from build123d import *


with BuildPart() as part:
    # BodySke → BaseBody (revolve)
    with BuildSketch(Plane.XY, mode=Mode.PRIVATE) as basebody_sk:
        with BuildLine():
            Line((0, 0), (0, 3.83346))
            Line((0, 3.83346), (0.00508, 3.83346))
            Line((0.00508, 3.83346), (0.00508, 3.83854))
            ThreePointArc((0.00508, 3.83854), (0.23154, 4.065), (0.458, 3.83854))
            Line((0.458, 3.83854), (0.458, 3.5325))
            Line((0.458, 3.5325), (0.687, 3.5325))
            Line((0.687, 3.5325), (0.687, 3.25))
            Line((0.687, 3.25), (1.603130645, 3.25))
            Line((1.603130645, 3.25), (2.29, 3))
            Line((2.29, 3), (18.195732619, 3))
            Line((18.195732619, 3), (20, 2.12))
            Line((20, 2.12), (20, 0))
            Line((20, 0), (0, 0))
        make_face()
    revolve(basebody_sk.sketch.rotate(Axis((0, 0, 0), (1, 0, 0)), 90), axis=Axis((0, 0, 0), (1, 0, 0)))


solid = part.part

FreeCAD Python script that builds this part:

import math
import FreeCAD as App
import Part
import Sketcher
Q = App.Units.Quantity

doc = App.newDocument("Part")
body = doc.addObject("PartDesign::Body", "Body")

# Sketch on XY plane
sketch1 = body.newObject("Sketcher::SketchObject", "Sketch")
sketch1.AttachmentSupport = (doc.getObject("XY_Plane"), [""])
sketch1.MapMode = "FlatFace"
sketch1.addGeometry([
    Part.LineSegment(App.Vector(0, 3.833, 0), App.Vector(0, 0, 0)),  # 0
    Part.LineSegment(App.Vector(0, 0, 0), App.Vector(20, 0, 0)),  # 1
    Part.LineSegment(App.Vector(20, 0, 0), App.Vector(20, 2.12, 0)),  # 2
    Part.LineSegment(App.Vector(20, 2.12, 0), App.Vector(18.196, 3, 0)),  # 3
    Part.LineSegment(App.Vector(18.196, 3, 0), App.Vector(2.29, 3, 0)),  # 4
    Part.LineSegment(App.Vector(2.29, 3, 0), App.Vector(1.603, 3.25, 0)),  # 5
    Part.LineSegment(App.Vector(1.603, 3.25, 0), App.Vector(0.687, 3.25, 0)),  # 6
    Part.LineSegment(App.Vector(0.687, 3.25, 0), App.Vector(0.687, 3.533, 0)),  # 7
    Part.LineSegment(App.Vector(0.687, 3.533, 0), App.Vector(0.458, 3.533, 0)),  # 8
    Part.LineSegment(App.Vector(0.458, 3.533, 0), App.Vector(0.458, 3.839, 0)),  # 9
    Part.ArcOfCircle(Part.Circle(App.Vector(0.232, 3.839, 0), App.Vector(0, 0, 1), 0.226), math.radians(0), math.radians(180)),  # 10
    Part.LineSegment(App.Vector(0.005, 3.839, 0), App.Vector(0.005, 3.833, 0)),  # 11
    Part.LineSegment(App.Vector(0.005, 3.833, 0), App.Vector(0, 3.833, 0)),  # 12
], False)
sketch1.addConstraint([
    Sketcher.Constraint("Coincident", 0, 2, 1, 1),
    Sketcher.Constraint("Coincident", 1, 2, 2, 1),
    Sketcher.Constraint("Coincident", 2, 2, 3, 1),
    Sketcher.Constraint("Coincident", 3, 2, 4, 1),
    Sketcher.Constraint("Coincident", 4, 2, 5, 1),
    Sketcher.Constraint("Coincident", 5, 2, 6, 1),
    Sketcher.Constraint("Coincident", 6, 2, 7, 1),
    Sketcher.Constraint("Coincident", 7, 2, 8, 1),
    Sketcher.Constraint("Coincident", 8, 2, 9, 1),
    Sketcher.Constraint("Tangent", 9, 2, 10, 1),
    Sketcher.Constraint("Tangent", 10, 2, 11, 1),
    Sketcher.Constraint("Coincident", 11, 2, 12, 1),
    Sketcher.Constraint("Coincident", 12, 2, 0, 1),
    Sketcher.Constraint("Vertical", 0),
    Sketcher.Constraint("Horizontal", 1),
    Sketcher.Constraint("Vertical", 2),
    Sketcher.Constraint("Horizontal", 4),
    Sketcher.Constraint("Horizontal", 6),
    Sketcher.Constraint("Vertical", 7),
    Sketcher.Constraint("Horizontal", 8),
    Sketcher.Constraint("Vertical", 9),
    Sketcher.Constraint("Vertical", 11),
    Sketcher.Constraint("Horizontal", 12),
    Sketcher.Constraint("Coincident", 0, 2, -1, 1),
    Sketcher.Constraint("Equal", 12, 11),
    Sketcher.Constraint("DistanceX", 1, 1, 1, 2, 20.0),
    Sketcher.Constraint("Angle", 3, Q("154 deg")),
    Sketcher.Constraint("Angle", 5, Q("160 deg")),
    Sketcher.Constraint("DistanceY", -1, 1, 3, 2, 3.0),
    Sketcher.Constraint("DistanceY", 2, 1, 2, 2, 2.12),
    Sketcher.Constraint("DistanceX", 8, 2, 8, 1, 0.229),
    Sketcher.Constraint("DistanceX", -1, 1, 4, 2, 2.29),
    Sketcher.Constraint("DistanceY", -1, 1, 5, 2, 3.25),
    Sketcher.Constraint("Radius", 10, 0.22646),
    Sketcher.Constraint("DistanceY", 7, 1, 7, 2, 0.2825),
    Sketcher.Constraint("DistanceX", -1, 1, 6, 2, 0.687),
    Sketcher.Constraint("DistanceY", 0, 2, 0, 1, 3.83346),
])
revolution = body.newObject("PartDesign::Revolution", "Revolution")
revolution.Profile = sketch1
revolution.ReferenceAxis = (sketch1, ["H_Axis"])
revolution.Angle = 360

doc.recompute()
